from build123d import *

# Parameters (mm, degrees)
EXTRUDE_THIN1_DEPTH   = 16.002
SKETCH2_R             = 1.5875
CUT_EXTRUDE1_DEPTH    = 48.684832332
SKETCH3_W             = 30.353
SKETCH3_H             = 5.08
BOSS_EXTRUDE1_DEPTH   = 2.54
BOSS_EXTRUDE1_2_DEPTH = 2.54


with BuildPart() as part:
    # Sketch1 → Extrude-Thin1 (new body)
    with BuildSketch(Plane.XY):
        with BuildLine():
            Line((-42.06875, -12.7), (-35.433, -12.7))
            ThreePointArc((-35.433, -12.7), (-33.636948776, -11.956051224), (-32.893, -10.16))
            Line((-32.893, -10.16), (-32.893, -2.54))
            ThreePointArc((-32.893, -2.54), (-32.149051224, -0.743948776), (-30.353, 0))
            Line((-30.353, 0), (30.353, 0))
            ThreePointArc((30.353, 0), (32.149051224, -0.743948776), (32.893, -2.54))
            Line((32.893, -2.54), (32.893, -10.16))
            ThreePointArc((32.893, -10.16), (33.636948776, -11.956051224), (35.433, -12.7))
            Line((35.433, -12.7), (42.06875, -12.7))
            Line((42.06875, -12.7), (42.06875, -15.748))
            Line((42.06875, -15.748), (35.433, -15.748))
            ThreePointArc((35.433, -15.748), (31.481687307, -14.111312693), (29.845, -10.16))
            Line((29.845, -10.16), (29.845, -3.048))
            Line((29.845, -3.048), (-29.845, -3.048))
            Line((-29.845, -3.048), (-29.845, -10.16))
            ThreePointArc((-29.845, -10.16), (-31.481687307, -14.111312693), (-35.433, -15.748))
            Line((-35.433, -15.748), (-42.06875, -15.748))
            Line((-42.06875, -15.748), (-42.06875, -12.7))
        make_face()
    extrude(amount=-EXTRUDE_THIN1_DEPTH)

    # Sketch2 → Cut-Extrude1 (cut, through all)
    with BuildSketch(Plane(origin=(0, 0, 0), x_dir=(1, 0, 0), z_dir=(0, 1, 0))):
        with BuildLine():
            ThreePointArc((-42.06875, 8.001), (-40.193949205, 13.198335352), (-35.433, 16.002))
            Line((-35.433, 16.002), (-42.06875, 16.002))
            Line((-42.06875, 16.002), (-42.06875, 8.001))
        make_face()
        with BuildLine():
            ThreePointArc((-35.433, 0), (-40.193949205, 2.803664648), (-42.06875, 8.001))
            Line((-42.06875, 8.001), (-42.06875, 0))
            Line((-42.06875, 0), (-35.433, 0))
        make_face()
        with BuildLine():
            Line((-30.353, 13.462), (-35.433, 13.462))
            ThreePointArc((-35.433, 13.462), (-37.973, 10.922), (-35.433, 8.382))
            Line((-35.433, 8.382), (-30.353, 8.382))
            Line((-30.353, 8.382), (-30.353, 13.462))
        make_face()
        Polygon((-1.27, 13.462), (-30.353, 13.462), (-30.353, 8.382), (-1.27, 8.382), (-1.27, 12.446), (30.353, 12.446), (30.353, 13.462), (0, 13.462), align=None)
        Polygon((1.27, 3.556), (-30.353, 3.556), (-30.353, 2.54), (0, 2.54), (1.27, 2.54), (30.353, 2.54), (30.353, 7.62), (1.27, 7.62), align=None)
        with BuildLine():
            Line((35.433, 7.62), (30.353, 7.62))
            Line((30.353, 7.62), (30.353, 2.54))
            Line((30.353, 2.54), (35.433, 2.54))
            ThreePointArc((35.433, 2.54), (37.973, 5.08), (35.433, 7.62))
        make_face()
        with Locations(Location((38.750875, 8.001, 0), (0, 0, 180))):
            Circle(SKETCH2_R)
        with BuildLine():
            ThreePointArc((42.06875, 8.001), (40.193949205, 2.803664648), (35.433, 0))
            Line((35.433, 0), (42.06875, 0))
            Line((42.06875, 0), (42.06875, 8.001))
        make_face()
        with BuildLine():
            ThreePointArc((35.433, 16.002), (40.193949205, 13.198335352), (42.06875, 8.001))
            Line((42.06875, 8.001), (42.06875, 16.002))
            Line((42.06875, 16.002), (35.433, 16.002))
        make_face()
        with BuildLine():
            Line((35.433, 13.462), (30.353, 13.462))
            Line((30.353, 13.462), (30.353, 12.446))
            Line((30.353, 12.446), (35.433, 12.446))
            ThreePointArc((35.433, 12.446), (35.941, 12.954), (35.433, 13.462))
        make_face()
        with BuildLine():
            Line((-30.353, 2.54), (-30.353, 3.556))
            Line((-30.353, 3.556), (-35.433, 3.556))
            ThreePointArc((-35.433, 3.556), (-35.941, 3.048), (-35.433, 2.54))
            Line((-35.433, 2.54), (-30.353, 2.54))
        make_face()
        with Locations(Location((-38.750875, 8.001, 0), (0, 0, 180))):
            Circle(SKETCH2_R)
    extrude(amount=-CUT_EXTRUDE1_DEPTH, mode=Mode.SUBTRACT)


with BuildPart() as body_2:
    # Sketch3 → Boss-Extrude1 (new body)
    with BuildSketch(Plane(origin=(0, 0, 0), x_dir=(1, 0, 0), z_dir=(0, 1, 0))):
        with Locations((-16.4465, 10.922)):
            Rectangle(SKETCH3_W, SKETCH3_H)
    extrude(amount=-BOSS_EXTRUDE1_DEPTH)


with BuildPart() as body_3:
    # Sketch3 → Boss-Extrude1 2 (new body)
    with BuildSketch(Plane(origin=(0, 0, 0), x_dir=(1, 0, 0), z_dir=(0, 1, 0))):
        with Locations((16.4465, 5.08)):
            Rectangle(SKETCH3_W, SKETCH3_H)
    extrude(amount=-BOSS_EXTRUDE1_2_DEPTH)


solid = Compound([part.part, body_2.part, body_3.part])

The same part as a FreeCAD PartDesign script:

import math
import FreeCAD as App
import Part
import Sketcher

V = App.Vector
Q = App.Units.Quantity

doc = App.newDocument("Part")
body = doc.addObject("PartDesign::Body", "Body")

# Sketch on XY plane
sketch1 = body.newObject("Sketcher::SketchObject", "Sketch")
sketch1.AttachmentSupport = (doc.getObject("XY_Plane"), [""])
sketch1.MapMode = "FlatFace"
sketch1.addGeometry([
    Part.LineSegment(V(-35.4, -12.7, 0), V(-42.1, -12.7, 0)),  # 0
    Part.LineSegment(V(-42.1, -12.7, 0), V(-42.1, -15.7, 0)),  # 1
    Part.LineSegment(V(-42.1, -15.7, 0), V(-35.4, -15.7, 0)),  # 2
    Part.ArcOfCircle(Part.Circle(V(-35.4, -10.2, 0), V(0, 0, 1), 5.6), math.radians(-90), math.radians(0)),  # 3
    Part.LineSegment(V(-29.8, -10.2, 0), V(-29.8, -3, 0)),  # 4
    Part.LineSegment(V(-29.8, -3, 0), V(29.8, -3, 0)),  # 5
    Part.LineSegment(V(29.8, -3, 0), V(29.8, -10.2, 0)),  # 6
    Part.ArcOfCircle(Part.Circle(V(35.4, -10.2, 0), V(0, 0, 1), 5.6), math.radians(-180), math.radians(-90)),  # 7
    Part.LineSegment(V(35.4, -15.7, 0), V(42.1, -15.7, 0)),  # 8
    Part.LineSegment(V(42.1, -15.7, 0), V(42.1, -12.7, 0)),  # 9
    Part.LineSegment(V(42.1, -12.7, 0), V(35.4, -12.7, 0)),  # 10
    Part.ArcOfCircle(Part.Circle(V(35.4, -10.2, 0), V(0, 0, 1), 2.5), math.radians(-180), math.radians(-90)),  # 11
    Part.LineSegment(V(32.9, -10.2, 0), V(32.9, -2.5, 0)),  # 12
    Part.ArcOfCircle(Part.Circle(V(30.4, -2.5, 0), V(0, 0, 1), 2.5), math.radians(0), math.radians(90)),  # 13
    Part.LineSegment(V(30.4, 0, 0), V(-30.4, 0, 0)),  # 14
    Part.ArcOfCircle(Part.Circle(V(-30.4, -2.5, 0), V(0, 0, 1), 2.5), math.radians(90), math.radians(180)),  # 15
    Part.LineSegment(V(-32.9, -2.5, 0), V(-32.9, -10.2, 0)),  # 16
    Part.ArcOfCircle(Part.Circle(V(-35.4, -10.2, 0), V(0, 0, 1), 2.5), math.radians(-90), math.radians(0)),  # 17
], False)
sketch1.addConstraint([
    Sketcher.Constraint("Coincident", 0, 2, 1, 1),
    Sketcher.Constraint("Coincident", 1, 2, 2, 1),
    Sketcher.Constraint("Tangent", 2, 2, 3, 1),
    Sketcher.Constraint("Tangent", 3, 2, 4, 1),
    Sketcher.Constraint("Coincident", 4, 2, 5, 1),
    Sketcher.Constraint("Coincident", 5, 2, 6, 1),
    Sketcher.Constraint("Tangent", 6, 2, 7, 1),
    Sketcher.Constraint("Tangent", 7, 2, 8, 1),
    Sketcher.Constraint("Coincident", 8, 2, 9, 1),
    Sketcher.Constraint("Coincident", 9, 2, 10, 1),
    Sketcher.Constraint("Tangent", 10, 2, 11, 2),
    Sketcher.Constraint("Tangent", 11, 1, 12, 1),
    Sketcher.Constraint("Tangent", 12, 2, 13, 1),
    Sketcher.Constraint("Tangent", 13, 2, 14, 1),
    Sketcher.Constraint("Tangent", 14, 2, 15, 1),
    Sketcher.Constraint("Tangent", 15, 2, 16, 1),
    Sketcher.Constraint("Tangent", 16, 2, 17, 2),
    Sketcher.Constraint("Tangent", 17, 1, 0, 1),
    Sketcher.Constraint("Horizontal", 0),
    Sketcher.Constraint("Vertical", 1),
    Sketcher.Constraint("Horizontal", 2),
    Sketcher.Constraint("Vertical", 4),
    Sketcher.Constraint("Horizontal", 5),
    Sketcher.Constraint("Vertical", 6),
    Sketcher.Constraint("Horizontal", 8),
    Sketcher.Constraint("Vertical", 9),
    Sketcher.Constraint("Horizontal", 10),
    Sketcher.Constraint("Vertical", 12),
    Sketcher.Constraint("Horizontal", 14),
    Sketcher.Constraint("Vertical", 16),
    Sketcher.Constraint("Coincident", 11, 3, 7, 3),
    Sketcher.Constraint("Coincident", 17, 3, 3, 3),
    Sketcher.Constraint("Equal", 3, 7),
    Sketcher.Constraint("Equal", 11, 13),
    Sketcher.Constraint("Equal", 13, 15),
    Sketcher.Constraint("Equal", 15, 17),
    Sketcher.Constraint("Symmetric", 13, 2, 14, 2, -1, 1),
    Sketcher.Constraint("Symmetric", 1, 2, 8, 2, -2),
    Sketcher.Constraint("Radius", 11, Q("0.1 in")),
    Sketcher.Constraint("Radius", 3, Q("0.22 in")),
    Sketcher.Constraint("DistanceY", 12, 1, 12, 2, Q("0.3 in")),
    Sketcher.Constraint("DistanceX", 5, 1, 5, 2, Q("2.35 in")),
    Sketcher.Constraint("DistanceY", 4, 1, 4, 2, Q("0.28 in")),
    Sketcher.Constraint("DistanceX", 0, 2, -1, 1, Q("1.65625 in")),
])
pad1 = body.newObject("PartDesign::Pad", "Pad")
pad1.Profile = sketch1
pad1.Length = Q("0.63 in")
pad1.Reversed = True

# Sketch on XZ plane
sketch2 = body.newObject("Sketcher::SketchObject", "Sketch001")
sketch2.AttachmentSupport = (doc.getObject("XZ_Plane"), [""])
sketch2.MapMode = "FlatFace"
sketch2.addGeometry([
    Part.ArcOfCircle(Part.Circle(V(-33.9, -8, 0), V(0, 0, 1), 8.1), math.radians(180), math.radians(259)),  # 0
    Part.LineSegment(V(-35.4, -16, 0), V(-42.1, -16, 0)),  # 1
    Part.LineSegment(V(-42.1, -16, 0), V(-42.1, -8, 0)),  # 2
    Part.ArcOfCircle(Part.Circle(V(-33.9, -8, 0), V(0, 0, 1), 8.1), math.radians(101), math.radians(180)),  # 3
    Part.LineSegment(V(-42.1, -8, 0), V(-42.1, 0, 0)),  # 4
    Part.LineSegment(V(-42.1, 0, 0), V(-35.4, 0, 0)),  # 5
    Part.ArcOfCircle(Part.Circle(V(-35.4, -10.9, 0), V(0, 0, 1), 2.5), math.radians(90), math.radians(270)),  # 6
    Part.LineSegment(V(-35.4, -8.4, 0), V(-1.3, -8.4, 0)),  # 7
    Part.LineSegment(V(-1.3, -8.4, 0), V(-1.3, -12.4, 0)),  # 8
    Part.LineSegment(V(-1.3, -12.4, 0), V(35.4, -12.4, 0)),  # 9
    Part.ArcOfCircle(Part.Circle(V(35.4, -13, 0), V(0, 0, 1), 0.5), math.radians(-90), math.radians(90)),  # 10
    Part.LineSegment(V(35.4, -13.5, 0), V(-35.4, -13.5, 0)),  # 11
    Part.LineSegment(V(1.3, -3.6, 0), V(-35.4, -3.6, 0)),  # 12
    Part.ArcOfCircle(Part.Circle(V(-35.4, -3, 0), V(0, 0, 1), 0.5), math.radians(90), math.radians(270)),  # 13
    Part.LineSegment(V(-35.4, -2.5, 0), V(35.4, -2.5, 0)),  # 14
    Part.ArcOfCircle(Part.Circle(V(35.4, -5.1, 0), V(0, 0, 1), 2.5), math.radians(-90), math.radians(90)),  # 15
    Part.LineSegment(V(35.4, -7.6, 0), V(1.3, -7.6, 0)),  # 16
    Part.LineSegment(V(1.3, -7.6, 0), V(1.3, -3.6, 0)),  # 17
    Part.Circle(V(38.8, -8, 0), V(0, 0, 1), 1.6),  # 18
    Part.ArcOfCircle(Part.Circle(V(33.9, -8, 0), V(0, 0, 1), 8.1), math.radians(0), math.radians(79)),  # 19
    Part.LineSegment(V(35.4, 0, 0), V(42.1, 0, 0)),  # 20
    Part.LineSegment(V(42.1, 0, 0), V(42.1, -8, 0)),  # 21
    Part.ArcOfCircle(Part.Circle(V(33.9, -8, 0), V(0, 0, 1), 8.1), math.radians(-79), math.radians(0)),  # 22
    Part.LineSegment(V(42.1, -8, 0), V(42.1, -16, 0)),  # 23
    Part.LineSegment(V(42.1, -16, 0), V(35.4, -16, 0)),  # 24
    Part.Circle(V(-38.8, -8, 0), V(0, 0, 1), 1.6),  # 25
], False)
sketch2.addConstraint([
    Sketcher.Constraint("Coincident", 0, 2, 1, 1),
    Sketcher.Constraint("Coincident", 1, 2, 2, 1),
    Sketcher.Constraint("Tangent", 2, 2, 0, 1),
    Sketcher.Constraint("Tangent", 3, 2, 4, 1),
    Sketcher.Constraint("Coincident", 4, 2, 5, 1),
    Sketcher.Constraint("Coincident", 5, 2, 3, 1),
    Sketcher.Constraint("Tangent", 6, 1, 7, 1),
    Sketcher.Constraint("Coincident", 7, 2, 8, 1),
    Sketcher.Constraint("Coincident", 8, 2, 9, 1),
    Sketcher.Constraint("Tangent", 9, 2, 10, 2),
    Sketcher.Constraint("Tangent", 10, 1, 11, 1),
    Sketcher.Constraint("Tangent", 11, 2, 6, 2),
    Sketcher.Constraint("Tangent", 12, 2, 13, 2),
    Sketcher.Constraint("Tangent", 13, 1, 14, 1),
    Sketcher.Constraint("Tangent", 14, 2, 15, 2),
    Sketcher.Constraint("Tangent", 15, 1, 16, 1),
    Sketcher.Constraint("Coincident", 16, 2, 17, 1),
    Sketcher.Constraint("Coincident", 17, 2, 12, 1),
    Sketcher.Constraint("Coincident", 19, 2, 20, 1),
    Sketcher.Constraint("Coincident", 20, 2, 21, 1),
    Sketcher.Constraint("Tangent", 21, 2, 19, 1),
    Sketcher.Constraint("Tangent", 22, 2, 23, 1),
    Sketcher.Constraint("Coincident", 23, 2, 24, 1),
    Sketcher.Constraint("Coincident", 24, 2, 22, 1),
    Sketcher.Constraint("Horizontal", 1),
    Sketcher.Constraint("Vertical", 2),
    Sketcher.Constraint("Vertical", 4),
    Sketcher.Constraint("Horizontal", 5),
    Sketcher.Constraint("Horizontal", 7),
    Sketcher.Constraint("Vertical", 8),
    Sketcher.Constraint("Horizontal", 9),
    Sketcher.Constraint("Horizontal", 11),
    Sketcher.Constraint("Horizontal", 12),
    Sketcher.Constraint("Horizontal", 14),
    Sketcher.Constraint("Horizontal", 16),
    Sketcher.Constraint("Vertical", 17),
    Sketcher.Constraint("Horizontal", 20),
    Sketcher.Constraint("Vertical", 21),
    Sketcher.Constraint("Vertical", 23),
    Sketcher.Constraint("Horizontal", 24),
    Sketcher.Constraint("Coincident", 3, 3, 0, 3),
    Sketcher.Constraint("Coincident", 22, 3, 19, 3),
    Sketcher.Constraint("Equal", 0, 3),
    Sketcher.Constraint("Equal", 10, 13),
    Sketcher.Constraint("Equal", 6, 15),
    Sketcher.Constraint("Equal", 3, 19),
    Sketcher.Constraint("Equal", 19, 22),
    Sketcher.Constraint("Equal", 18, 25),
    Sketcher.Constraint("Symmetric", 5, 2, 19, 2, -1, 1),
    Sketcher.Constraint("Symmetric", 0, 3, 19, 3, -2),
    Sketcher.Constraint("Symmetric", 18, 3, 25, 3, -2),
    Sketcher.Constraint("Horizontal", 3, 3, 18, 3),
    Sketcher.Constraint("Horizontal", 1, 2, 23, 2),
    Sketcher.Constraint("Vertical", 6, 3, 13, 3),
    Sketcher.Constraint("Vertical", 10, 3, 15, 3),
    Sketcher.Constraint("Vertical", 13, 3, 0, 2),
    Sketcher.Constraint("Vertical", 0, 2, 5, 2),
    Sketcher.Constraint("Vertical", 15, 1, 19, 2),
    Sketcher.Constraint("Equal", 9, 12),
    Sketcher.Constraint("Radius", 6, Q("0.1 in")),
    Sketcher.Constraint("Radius", 10, Q("0.02 in")),
    Sketcher.Constraint("Diameter", 18, Q("0.125 in")),
    Sketcher.Constraint("DistanceX", 11, 2, 11, 1, Q("2.79 in")),
    Sketcher.Constraint("DistanceY", 15, 3, -1, 1, Q("0.2 in")),
    Sketcher.Constraint("DistanceY", 0, 2, 6, 3, Q("0.2 in")),
    Sketcher.Constraint("DistanceX", 7, 2, 16, 2, Q("0.1 in")),
    Sketcher.Constraint("DistanceY", 2, 1, 2, 2, Q("0.315 in")),
    Sketcher.Constraint("DistanceX", 1, 2, -1, 1, Q("1.65625 in")),
    Sketcher.Constraint("DistanceX", 0, 3, 18, 3, 72.678181),
])
pocket1 = body.newObject("PartDesign::Pocket", "Pocket")
pocket1.Profile = sketch2
pocket1.Type = "ThroughAll"
pocket1.Reversed = True
body2 = doc.addObject("PartDesign::Body", "Body001")

# Sketch on XZ plane
sketch3 = body2.newObject("Sketcher::SketchObject", "Sketch002")
sketch3.AttachmentSupport = (doc.getObject("XZ_Plane001"), [""])
sketch3.MapMode = "FlatFace"
sketch3.addGeometry([
    Part.LineSegment(V(-32, -13, 0), V(-32, -8, 0)),
    Part.LineSegment(V(-32, -8, 0), V(-1, -8, 0)),
    Part.LineSegment(V(-1, -8, 0), V(-1, -13, 0)),
    Part.LineSegment(V(-1, -13, 0), V(-32, -13, 0)),
], False)
sketch3.addConstraint([
    Sketcher.Constraint("Coincident", 0, 2, 1, 1),
    Sketcher.Constraint("Coincident", 1, 2, 2, 1),
    Sketcher.Constraint("Coincident", 2, 2, 3, 1),
    Sketcher.Constraint("Coincident", 3, 2, 0, 1),
    Sketcher.Constraint("Vertical", 0),
    Sketcher.Constraint("Horizontal", 1),
    Sketcher.Constraint("Vertical", 2),
    Sketcher.Constraint("Horizontal", 3),
    Sketcher.Constraint("DistanceY", 0, 1, 0, 2, Q("0.2 in")),
    Sketcher.Constraint("DistanceX", 1, 1, 1, 2, Q("1.195 in")),
    Sketcher.Constraint("DistanceY", 0, 2, -1, 1, Q("0.33 in")),
    Sketcher.Constraint("DistanceX", 1, 2, -1, 1, Q("0.05 in")),
])
pad2 = body2.newObject("PartDesign::Pad", "Pad001")
pad2.Profile = sketch3
pad2.Length = Q("0.1 in")
body3 = doc.addObject("PartDesign::Body", "Body002")

# Sketch on XZ plane
sketch4 = body3.newObject("Sketcher::SketchObject", "Sketch003")
sketch4.AttachmentSupport = (doc.getObject("XZ_Plane002"), [""])
sketch4.MapMode = "FlatFace"
sketch4.addGeometry([
    Part.LineSegment(V(1, -8, 0), V(1, -3, 0)),
    Part.LineSegment(V(1, -3, 0), V(32, -3, 0)),
    Part.LineSegment(V(32, -3, 0), V(32, -8, 0)),
    Part.LineSegment(V(32, -8, 0), V(1, -8, 0)),
], False)
sketch4.addConstraint([
    Sketcher.Constraint("Coincident", 0, 2, 1, 1),
    Sketcher.Constraint("Coincident", 1, 2, 2, 1),
    Sketcher.Constraint("Coincident", 2, 2, 3, 1),
    Sketcher.Constraint("Coincident", 3, 2, 0, 1),
    Sketcher.Constraint("Vertical", 0),
    Sketcher.Constraint("Horizontal", 1),
    Sketcher.Constraint("Vertical", 2),
    Sketcher.Constraint("Horizontal", 3),
    Sketcher.Constraint("DistanceY", 0, 1, 0, 2, Q("0.2 in")),
    Sketcher.Constraint("DistanceY", 0, 2, -1, 1, Q("0.1 in")),
    Sketcher.Constraint("DistanceX", 1, 1, 1, 2, Q("1.195 in")),
    Sketcher.Constraint("DistanceX", -1, 1, 0, 2, Q("0.05 in")),
])
pad3 = body3.newObject("PartDesign::Pad", "Pad002")
pad3.Profile = sketch4
pad3.Length = Q("0.1 in")

doc.recompute()
